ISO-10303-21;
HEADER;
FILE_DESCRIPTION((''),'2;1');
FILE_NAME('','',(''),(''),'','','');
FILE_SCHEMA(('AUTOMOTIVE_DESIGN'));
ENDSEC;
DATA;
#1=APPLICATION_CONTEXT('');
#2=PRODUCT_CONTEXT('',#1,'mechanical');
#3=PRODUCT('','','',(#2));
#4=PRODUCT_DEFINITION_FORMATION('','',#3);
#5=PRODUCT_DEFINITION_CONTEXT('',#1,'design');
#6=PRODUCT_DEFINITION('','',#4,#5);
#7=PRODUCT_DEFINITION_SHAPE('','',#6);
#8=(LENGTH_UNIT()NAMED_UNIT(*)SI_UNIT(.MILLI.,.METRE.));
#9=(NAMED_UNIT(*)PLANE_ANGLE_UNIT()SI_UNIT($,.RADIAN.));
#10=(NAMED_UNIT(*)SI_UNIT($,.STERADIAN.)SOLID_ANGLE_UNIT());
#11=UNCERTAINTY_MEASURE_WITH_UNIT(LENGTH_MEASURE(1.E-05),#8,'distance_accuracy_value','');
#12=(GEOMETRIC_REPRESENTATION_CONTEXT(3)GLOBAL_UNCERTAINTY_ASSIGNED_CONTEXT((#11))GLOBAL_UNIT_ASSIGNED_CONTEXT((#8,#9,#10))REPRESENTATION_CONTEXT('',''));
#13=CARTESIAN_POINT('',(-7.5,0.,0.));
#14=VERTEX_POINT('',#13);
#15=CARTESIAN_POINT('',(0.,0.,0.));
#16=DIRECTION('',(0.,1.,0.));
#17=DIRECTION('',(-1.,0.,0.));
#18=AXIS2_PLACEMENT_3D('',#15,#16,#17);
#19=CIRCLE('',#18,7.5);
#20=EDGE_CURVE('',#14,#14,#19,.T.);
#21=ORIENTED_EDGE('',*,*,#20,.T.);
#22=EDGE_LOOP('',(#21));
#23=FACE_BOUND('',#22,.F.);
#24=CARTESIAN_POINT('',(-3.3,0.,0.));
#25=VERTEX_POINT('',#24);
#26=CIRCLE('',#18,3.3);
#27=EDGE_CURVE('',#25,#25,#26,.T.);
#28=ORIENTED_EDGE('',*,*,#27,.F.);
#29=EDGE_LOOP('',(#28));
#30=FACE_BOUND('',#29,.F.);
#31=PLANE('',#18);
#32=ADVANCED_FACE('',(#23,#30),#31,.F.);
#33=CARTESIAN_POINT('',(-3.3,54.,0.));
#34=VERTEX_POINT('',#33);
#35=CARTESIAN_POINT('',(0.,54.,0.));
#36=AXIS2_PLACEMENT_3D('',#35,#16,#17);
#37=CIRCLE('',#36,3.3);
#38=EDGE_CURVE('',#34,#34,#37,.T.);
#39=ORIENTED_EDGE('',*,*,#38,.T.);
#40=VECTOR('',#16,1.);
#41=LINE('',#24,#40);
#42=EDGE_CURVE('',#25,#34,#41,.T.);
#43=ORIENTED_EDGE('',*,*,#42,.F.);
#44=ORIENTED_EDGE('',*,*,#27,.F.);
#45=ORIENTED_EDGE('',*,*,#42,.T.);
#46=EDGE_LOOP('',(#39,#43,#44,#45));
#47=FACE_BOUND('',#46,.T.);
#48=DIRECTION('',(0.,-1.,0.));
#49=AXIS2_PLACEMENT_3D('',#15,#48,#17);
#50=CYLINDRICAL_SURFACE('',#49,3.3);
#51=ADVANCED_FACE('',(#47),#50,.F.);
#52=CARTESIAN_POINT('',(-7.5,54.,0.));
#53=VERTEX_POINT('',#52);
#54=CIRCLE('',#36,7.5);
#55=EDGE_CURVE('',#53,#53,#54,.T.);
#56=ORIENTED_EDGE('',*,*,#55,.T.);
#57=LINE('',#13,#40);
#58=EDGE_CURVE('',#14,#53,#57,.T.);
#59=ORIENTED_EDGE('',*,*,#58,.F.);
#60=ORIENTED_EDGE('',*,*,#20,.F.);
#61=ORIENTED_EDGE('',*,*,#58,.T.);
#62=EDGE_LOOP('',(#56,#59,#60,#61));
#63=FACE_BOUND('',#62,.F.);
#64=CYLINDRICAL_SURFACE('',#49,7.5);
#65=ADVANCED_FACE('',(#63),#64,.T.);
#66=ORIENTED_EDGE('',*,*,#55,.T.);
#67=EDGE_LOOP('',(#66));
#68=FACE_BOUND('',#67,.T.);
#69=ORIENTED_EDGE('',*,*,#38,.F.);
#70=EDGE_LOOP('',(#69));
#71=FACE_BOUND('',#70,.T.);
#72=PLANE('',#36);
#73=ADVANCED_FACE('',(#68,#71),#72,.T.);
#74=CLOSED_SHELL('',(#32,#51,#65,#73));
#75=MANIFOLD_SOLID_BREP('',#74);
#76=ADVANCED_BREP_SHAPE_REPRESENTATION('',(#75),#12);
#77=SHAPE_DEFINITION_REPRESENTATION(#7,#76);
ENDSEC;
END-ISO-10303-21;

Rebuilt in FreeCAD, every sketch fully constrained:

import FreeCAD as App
import Part
import Sketcher
from FreeCAD import Vector

doc = App.newDocument("Part")
body = doc.addObject("PartDesign::Body", "Body")

# Sketch on XZ plane
sketch1 = body.newObject("Sketcher::SketchObject", "Sketch")
sketch1.AttachmentSupport = (doc.getObject("XZ_Plane"), [""])
sketch1.MapMode = "FlatFace"
sketch1.addGeometry([
    Part.Circle(Vector(0, 0, 0), Vector(0, 0, 1), 7.5),
    Part.Circle(Vector(0, 0, 0), Vector(0, 0, 1), 3.3),
], False)
sketch1.addConstraint([
    Sketcher.Constraint("Coincident", 0, 3, -1, 1),
    Sketcher.Constraint("Coincident", 1, 3, -1, 1),
    Sketcher.Constraint("Diameter", 0, 15.0),
    Sketcher.Constraint("Diameter", 1, 6.6),
])
pad1 = body.newObject("PartDesign::Pad", "Pad")
pad1.Profile = sketch1
pad1.Length = 54
pad1.Reversed = True

doc.recompute()
